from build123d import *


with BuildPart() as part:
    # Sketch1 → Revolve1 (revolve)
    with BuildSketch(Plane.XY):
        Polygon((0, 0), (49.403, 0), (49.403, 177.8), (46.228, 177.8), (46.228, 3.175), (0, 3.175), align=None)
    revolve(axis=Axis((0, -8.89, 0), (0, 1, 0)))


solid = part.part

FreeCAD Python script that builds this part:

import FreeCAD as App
import Part
import Sketcher
from FreeCAD import Vector
Q = App.Units.Quantity


def add_polygon(sketch, points):
    """Adds a closed chain of lines whose ends are joined by coincident constraints."""
    first, n = sketch.GeometryCount, len(points)
    for a, b in zip(points, points[1:] + points[:1]):
        sketch.addGeometry(Part.LineSegment(App.Vector(*a, 0), App.Vector(*b, 0)), False)
    for i in range(n):
        sketch.addConstraint(Sketcher.Constraint("Coincident", first + i, 2, first + (i + 1) % n, 1))

doc = App.newDocument("Part")
body = doc.addObject("PartDesign::Body", "Body")

# Sketch on XY plane
sketch1 = body.newObject("Sketcher::SketchObject", "Sketch")
sketch1.AttachmentSupport = (doc.getObject("XY_Plane"), [""])
sketch1.MapMode = "FlatFace"
add_polygon(sketch1, [(0, 0), (49.4, 0), (49.4, 177.8), (46.2, 177.8), (46.2, 3.2), (0, 3.2)])  # lines 0-5
sketch1.addConstraint(Sketcher.Constraint("Horizontal", 0))
sketch1.addConstraint(Sketcher.Constraint("Vertical", 1))
sketch1.addConstraint(Sketcher.Constraint("Horizontal", 2))
sketch1.addConstraint(Sketcher.Constraint("Vertical", 3))
sketch1.addConstraint(Sketcher.Constraint("Horizontal", 4))
sketch1.addConstraint(Sketcher.Constraint("Vertical", 5))
sketch1.addConstraint(Sketcher.Constraint("Coincident", 5, 2, -1, 1))
sketch1.addConstraint(Sketcher.Constraint("Equal", 2, 5))
sketch1.addConstraint(Sketcher.Constraint("DistanceY", 1, 1, 1, 2, Q("7 in")))
sketch1.addConstraint(Sketcher.Constraint("DistanceX", 4, 2, 4, 1, Q("1.82 in")))
sketch1.addConstraint(Sketcher.Constraint("DistanceX", 0, 1, 0, 2, Q("1.945 in")))
revolution = body.newObject("PartDesign::Revolution", "Revolution")
revolution.Profile = sketch1
revolution.ReferenceAxis = (sketch1, ["V_Axis"])
revolution.Angle = 360

doc.recompute()
